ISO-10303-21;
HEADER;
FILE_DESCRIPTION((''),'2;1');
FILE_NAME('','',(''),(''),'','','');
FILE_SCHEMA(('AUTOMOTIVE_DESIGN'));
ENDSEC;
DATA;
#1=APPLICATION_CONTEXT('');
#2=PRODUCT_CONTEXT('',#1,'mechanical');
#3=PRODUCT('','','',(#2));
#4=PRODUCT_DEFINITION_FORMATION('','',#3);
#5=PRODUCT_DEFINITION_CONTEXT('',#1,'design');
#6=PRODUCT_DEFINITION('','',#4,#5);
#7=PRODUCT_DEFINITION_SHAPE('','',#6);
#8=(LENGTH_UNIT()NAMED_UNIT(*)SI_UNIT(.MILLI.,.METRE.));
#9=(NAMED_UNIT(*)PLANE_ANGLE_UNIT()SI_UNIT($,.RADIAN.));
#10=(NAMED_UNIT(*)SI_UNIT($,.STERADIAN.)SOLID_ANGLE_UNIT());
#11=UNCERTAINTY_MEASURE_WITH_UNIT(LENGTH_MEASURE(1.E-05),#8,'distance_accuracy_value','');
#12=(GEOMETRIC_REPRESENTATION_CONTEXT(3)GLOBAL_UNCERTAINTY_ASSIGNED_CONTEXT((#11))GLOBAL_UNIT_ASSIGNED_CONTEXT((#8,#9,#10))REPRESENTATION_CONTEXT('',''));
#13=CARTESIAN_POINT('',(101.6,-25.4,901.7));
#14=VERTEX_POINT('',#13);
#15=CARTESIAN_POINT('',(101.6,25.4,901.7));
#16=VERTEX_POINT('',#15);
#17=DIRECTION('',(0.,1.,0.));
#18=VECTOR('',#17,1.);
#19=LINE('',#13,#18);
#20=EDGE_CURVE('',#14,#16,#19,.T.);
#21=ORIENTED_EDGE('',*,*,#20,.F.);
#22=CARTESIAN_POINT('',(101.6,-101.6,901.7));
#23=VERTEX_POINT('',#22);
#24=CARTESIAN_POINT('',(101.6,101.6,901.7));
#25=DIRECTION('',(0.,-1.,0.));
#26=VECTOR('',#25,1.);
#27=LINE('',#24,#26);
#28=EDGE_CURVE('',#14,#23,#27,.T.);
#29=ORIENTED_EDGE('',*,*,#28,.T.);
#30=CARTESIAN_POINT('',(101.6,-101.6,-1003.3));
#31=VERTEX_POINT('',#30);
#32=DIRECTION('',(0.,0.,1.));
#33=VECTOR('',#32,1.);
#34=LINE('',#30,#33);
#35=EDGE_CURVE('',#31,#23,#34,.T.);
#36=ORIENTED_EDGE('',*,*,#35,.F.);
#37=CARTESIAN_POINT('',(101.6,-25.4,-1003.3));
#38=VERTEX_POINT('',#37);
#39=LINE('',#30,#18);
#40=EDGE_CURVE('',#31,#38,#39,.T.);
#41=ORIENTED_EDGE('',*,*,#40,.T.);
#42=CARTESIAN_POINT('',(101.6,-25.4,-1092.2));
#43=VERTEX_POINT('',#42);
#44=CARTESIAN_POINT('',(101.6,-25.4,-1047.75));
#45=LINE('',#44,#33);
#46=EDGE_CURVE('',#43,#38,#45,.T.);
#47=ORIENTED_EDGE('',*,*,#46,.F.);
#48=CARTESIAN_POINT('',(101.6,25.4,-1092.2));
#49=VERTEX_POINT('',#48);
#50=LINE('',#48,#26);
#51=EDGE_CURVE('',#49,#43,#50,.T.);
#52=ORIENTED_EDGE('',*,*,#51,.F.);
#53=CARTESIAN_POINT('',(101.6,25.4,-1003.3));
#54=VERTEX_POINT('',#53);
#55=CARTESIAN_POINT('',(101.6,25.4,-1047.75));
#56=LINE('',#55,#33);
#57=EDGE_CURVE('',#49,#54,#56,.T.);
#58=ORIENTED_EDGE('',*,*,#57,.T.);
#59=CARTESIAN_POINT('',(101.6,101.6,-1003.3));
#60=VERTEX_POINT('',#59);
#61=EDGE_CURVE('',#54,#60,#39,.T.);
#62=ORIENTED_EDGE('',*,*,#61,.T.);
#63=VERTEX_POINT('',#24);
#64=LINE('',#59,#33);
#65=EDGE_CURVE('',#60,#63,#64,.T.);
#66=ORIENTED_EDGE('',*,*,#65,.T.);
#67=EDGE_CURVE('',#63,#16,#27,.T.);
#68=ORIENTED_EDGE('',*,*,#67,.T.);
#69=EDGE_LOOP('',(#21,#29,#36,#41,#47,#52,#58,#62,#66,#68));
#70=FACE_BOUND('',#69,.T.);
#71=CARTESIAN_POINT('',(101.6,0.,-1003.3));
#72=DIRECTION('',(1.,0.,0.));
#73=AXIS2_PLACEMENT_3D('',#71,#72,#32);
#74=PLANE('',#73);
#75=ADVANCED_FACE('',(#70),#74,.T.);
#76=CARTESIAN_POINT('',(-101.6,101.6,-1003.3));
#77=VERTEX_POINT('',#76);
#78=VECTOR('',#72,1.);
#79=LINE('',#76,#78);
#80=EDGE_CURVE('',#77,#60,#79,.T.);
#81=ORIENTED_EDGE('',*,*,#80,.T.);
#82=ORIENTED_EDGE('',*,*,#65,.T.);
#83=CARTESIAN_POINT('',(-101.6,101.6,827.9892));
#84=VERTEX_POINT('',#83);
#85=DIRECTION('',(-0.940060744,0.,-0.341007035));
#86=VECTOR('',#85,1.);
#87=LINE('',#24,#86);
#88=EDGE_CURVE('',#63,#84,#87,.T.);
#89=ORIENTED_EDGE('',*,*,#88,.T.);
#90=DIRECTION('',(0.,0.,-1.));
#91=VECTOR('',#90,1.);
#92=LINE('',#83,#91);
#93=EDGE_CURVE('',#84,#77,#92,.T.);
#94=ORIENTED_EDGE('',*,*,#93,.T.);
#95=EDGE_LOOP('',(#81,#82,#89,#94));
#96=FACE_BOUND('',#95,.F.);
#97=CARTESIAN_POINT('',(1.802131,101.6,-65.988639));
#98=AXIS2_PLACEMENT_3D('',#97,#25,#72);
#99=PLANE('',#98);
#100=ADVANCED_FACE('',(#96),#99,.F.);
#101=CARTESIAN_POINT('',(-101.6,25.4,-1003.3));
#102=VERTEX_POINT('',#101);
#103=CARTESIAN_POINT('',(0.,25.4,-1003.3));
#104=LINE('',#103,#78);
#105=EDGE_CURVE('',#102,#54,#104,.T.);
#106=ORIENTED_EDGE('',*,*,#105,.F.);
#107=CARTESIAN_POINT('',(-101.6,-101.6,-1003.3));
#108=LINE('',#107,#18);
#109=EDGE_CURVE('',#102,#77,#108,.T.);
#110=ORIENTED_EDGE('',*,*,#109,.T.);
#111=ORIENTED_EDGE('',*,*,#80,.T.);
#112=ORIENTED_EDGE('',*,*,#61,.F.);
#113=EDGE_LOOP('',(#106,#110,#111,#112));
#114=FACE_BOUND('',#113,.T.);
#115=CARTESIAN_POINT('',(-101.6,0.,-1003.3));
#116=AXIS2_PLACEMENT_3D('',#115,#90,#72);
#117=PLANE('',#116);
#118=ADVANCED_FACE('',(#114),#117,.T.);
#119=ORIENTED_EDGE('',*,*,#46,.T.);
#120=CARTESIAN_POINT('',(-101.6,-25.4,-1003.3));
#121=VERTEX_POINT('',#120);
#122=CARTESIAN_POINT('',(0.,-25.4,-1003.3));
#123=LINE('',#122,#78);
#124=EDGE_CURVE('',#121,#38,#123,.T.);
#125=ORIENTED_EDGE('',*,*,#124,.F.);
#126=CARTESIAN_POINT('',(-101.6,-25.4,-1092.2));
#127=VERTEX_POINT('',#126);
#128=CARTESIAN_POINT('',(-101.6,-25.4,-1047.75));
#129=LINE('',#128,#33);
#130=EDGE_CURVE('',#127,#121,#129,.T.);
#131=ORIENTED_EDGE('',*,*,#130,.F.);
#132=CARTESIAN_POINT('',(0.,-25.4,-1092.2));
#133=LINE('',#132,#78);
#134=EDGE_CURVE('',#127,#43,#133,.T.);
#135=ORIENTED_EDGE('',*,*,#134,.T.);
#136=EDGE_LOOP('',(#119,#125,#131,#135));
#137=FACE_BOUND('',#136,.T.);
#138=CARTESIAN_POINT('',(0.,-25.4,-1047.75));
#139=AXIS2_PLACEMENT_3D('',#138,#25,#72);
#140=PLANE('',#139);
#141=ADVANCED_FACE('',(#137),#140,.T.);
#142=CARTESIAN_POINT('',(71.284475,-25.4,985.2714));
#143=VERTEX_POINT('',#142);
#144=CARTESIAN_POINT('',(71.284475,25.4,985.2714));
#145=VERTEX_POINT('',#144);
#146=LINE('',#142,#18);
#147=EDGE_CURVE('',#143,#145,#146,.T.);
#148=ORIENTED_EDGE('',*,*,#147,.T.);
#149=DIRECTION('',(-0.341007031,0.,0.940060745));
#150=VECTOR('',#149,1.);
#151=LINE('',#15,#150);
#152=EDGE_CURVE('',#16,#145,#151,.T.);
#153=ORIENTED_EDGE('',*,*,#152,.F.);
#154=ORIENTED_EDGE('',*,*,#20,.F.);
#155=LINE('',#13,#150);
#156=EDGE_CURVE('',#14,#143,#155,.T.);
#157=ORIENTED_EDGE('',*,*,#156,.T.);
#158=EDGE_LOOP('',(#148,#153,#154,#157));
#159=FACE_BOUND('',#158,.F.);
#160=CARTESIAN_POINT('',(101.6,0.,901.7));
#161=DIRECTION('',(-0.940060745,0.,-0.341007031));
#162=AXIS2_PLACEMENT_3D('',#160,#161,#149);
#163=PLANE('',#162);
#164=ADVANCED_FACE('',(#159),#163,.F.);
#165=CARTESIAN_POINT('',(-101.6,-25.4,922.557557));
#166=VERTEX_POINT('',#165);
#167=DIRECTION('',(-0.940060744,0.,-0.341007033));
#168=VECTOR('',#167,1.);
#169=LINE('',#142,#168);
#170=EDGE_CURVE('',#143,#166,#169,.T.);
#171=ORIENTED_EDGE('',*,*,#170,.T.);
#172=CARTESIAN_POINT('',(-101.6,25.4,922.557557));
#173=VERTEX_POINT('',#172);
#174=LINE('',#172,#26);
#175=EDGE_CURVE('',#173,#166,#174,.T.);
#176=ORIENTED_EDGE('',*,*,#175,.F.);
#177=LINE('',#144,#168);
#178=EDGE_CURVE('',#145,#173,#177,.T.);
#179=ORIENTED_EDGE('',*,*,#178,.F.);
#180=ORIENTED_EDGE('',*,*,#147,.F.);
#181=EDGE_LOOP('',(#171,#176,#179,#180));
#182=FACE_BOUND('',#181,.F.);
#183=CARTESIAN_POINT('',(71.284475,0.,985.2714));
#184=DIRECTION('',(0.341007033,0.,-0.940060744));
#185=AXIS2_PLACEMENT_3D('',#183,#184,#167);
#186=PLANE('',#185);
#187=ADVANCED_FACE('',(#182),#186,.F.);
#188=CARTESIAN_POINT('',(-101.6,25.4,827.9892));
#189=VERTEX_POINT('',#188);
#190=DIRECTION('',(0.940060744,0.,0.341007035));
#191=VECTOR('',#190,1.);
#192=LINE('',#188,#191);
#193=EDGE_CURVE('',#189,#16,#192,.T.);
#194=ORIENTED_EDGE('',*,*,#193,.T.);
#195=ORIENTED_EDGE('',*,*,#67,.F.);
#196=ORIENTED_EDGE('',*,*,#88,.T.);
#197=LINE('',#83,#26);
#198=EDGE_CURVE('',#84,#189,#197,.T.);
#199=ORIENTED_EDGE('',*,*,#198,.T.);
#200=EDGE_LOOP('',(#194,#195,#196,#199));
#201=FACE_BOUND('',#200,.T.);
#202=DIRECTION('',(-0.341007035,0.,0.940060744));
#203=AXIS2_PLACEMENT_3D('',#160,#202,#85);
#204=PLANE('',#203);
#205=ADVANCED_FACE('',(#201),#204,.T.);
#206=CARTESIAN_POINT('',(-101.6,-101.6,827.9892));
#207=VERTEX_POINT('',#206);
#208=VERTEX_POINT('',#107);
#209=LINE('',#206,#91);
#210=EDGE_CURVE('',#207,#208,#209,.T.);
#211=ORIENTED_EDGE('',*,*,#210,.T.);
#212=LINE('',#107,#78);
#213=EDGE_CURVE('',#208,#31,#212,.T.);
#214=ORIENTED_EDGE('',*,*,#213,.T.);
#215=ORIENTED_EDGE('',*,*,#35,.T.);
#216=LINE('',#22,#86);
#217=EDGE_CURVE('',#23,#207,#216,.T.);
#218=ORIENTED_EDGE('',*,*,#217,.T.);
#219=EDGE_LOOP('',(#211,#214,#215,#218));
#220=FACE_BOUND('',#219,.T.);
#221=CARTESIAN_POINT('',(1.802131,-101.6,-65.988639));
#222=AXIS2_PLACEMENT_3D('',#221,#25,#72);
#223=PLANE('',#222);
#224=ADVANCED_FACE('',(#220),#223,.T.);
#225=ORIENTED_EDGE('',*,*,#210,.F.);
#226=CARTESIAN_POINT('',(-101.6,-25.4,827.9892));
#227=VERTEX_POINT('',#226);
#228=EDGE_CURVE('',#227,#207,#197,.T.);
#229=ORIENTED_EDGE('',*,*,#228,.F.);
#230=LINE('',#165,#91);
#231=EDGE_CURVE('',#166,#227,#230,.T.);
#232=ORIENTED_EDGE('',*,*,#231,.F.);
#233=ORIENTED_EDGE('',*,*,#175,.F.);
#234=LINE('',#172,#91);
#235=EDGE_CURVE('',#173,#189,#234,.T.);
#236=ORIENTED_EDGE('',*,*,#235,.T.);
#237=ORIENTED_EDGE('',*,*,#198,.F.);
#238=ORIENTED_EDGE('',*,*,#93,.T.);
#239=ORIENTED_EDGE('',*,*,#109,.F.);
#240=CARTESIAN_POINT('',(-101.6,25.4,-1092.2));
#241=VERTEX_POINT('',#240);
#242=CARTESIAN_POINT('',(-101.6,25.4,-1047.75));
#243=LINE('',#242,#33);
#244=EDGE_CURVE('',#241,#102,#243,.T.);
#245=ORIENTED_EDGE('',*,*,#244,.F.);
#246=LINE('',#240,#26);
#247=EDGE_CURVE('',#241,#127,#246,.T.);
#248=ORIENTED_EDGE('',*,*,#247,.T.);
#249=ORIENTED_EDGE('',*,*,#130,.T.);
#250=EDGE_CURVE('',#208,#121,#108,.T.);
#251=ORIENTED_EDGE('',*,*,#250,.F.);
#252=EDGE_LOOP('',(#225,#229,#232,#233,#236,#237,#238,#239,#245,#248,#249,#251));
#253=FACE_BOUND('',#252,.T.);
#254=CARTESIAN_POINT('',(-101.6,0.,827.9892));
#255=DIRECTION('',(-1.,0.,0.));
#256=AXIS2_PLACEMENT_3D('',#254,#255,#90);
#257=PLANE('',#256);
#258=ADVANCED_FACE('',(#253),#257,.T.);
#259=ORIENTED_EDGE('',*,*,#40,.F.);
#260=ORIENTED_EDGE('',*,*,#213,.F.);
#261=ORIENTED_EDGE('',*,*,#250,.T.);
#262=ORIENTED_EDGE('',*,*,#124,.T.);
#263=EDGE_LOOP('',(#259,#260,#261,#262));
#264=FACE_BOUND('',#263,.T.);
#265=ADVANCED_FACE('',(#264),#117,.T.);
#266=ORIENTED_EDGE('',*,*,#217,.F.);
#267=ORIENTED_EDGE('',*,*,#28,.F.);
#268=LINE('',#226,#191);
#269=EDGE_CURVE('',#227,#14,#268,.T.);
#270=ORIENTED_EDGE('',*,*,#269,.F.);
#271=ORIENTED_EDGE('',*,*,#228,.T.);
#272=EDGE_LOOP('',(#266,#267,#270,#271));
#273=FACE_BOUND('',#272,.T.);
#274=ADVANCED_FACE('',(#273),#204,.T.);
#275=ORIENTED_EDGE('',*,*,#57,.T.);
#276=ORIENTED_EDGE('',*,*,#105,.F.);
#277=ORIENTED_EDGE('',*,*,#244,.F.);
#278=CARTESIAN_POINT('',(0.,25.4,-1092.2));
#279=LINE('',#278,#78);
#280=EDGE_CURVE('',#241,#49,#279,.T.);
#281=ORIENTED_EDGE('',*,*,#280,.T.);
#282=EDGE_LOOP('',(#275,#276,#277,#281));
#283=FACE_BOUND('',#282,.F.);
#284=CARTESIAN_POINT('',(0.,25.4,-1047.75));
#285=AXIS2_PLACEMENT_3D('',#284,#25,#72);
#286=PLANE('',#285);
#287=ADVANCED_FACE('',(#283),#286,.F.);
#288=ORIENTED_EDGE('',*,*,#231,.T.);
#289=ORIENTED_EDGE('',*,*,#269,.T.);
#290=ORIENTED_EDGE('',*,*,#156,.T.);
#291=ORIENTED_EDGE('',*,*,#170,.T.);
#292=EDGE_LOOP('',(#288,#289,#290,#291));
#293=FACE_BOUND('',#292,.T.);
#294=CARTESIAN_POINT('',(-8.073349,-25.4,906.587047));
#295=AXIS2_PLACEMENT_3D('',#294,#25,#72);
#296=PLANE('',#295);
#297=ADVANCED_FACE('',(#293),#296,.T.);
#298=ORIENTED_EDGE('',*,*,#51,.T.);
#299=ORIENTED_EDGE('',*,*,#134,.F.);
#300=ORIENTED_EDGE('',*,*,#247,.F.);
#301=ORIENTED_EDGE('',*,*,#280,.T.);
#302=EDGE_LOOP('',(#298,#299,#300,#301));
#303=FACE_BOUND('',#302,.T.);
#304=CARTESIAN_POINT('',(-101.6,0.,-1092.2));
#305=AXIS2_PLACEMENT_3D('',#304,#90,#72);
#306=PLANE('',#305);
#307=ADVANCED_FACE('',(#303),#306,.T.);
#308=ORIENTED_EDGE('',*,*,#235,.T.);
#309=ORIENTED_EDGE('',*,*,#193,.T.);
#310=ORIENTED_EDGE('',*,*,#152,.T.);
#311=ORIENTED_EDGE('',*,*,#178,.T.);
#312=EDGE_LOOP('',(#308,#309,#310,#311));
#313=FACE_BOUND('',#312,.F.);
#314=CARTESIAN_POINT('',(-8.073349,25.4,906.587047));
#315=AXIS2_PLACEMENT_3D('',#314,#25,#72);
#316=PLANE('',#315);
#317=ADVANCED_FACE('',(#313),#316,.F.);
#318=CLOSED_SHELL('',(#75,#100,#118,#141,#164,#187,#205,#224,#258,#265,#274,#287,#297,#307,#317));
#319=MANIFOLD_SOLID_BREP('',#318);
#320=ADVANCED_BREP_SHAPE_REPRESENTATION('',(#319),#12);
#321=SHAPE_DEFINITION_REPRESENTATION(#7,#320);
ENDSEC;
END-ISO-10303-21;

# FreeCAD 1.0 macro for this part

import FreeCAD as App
import Part
import Sketcher
Q = App.Units.Quantity

doc = App.newDocument("Part")
params = doc.addObject("Spreadsheet::Sheet", "Params")
for row, (alias, value) in enumerate([
    ("sketch1_width", "8 in"),
    ("sketch1_height", "75 in"),
    ("sketch1_height2", "72.098 in"),
    ("pad1_length", "8 in"),
    ("sketch2_width", "8 in"),
    ("sketch2_height", "3.5 in"),
    ("sketch2_length", "3.5 in"),
    ("pad2_length", "2 in"),
], start=1):
    params.set(f"A{row}", alias)
    params.set(f"B{row}", "=" + value)
    params.setAlias(f"B{row}", alias)

body = doc.addObject("PartDesign::Body", "Body")

# Sketch on XZ plane
sketch1 = body.newObject("Sketcher::SketchObject", "Sketch")
sketch1.AttachmentSupport = (doc.getObject("XZ_Plane"), [""])
sketch1.MapMode = "FlatFace"
sketch1.addGeometry([
    Part.LineSegment(App.Vector(101.6, -1003.3, 0), App.Vector(101.6, 901.7, 0)),
    Part.LineSegment(App.Vector(101.6, 901.7, 0), App.Vector(-101.6, 827.9892, 0)),
    Part.LineSegment(App.Vector(-101.6, 827.9892, 0), App.Vector(-101.6, -1003.3, 0)),
    Part.LineSegment(App.Vector(-101.6, -1003.3, 0), App.Vector(101.6, -1003.3, 0)),
], False)
sketch1.addConstraint([
    Sketcher.Constraint("Coincident", 0, 2, 1, 1),
    Sketcher.Constraint("Coincident", 1, 2, 2, 1),
    Sketcher.Constraint("Coincident", 2, 2, 3, 1),
    Sketcher.Constraint("Coincident", 3, 2, 0, 1),
    Sketcher.Constraint("Vertical", 0),
    Sketcher.Constraint("Vertical", 2),
    Sketcher.Constraint("Horizontal", 3),
    Sketcher.Constraint("DistanceX", 3, 1, 3, 2, Q("8 in")),
    Sketcher.Constraint("DistanceY", 0, 1, 0, 2, Q("75 in")),
    Sketcher.Constraint("DistanceX", -1, 1, 0, 2, Q("4 in")),
    Sketcher.Constraint("DistanceY", -1, 1, 0, 2, Q("35.5 in")),
    Sketcher.Constraint("DistanceY", 2, 2, 2, 1, Q("72.098 in")),
])
sketch1.setExpression("Constraints[7]", "Params.sketch1_width")
sketch1.setExpression("Constraints[8]", "Params.sketch1_height")
sketch1.setExpression("Constraints[11]", "Params.sketch1_height2")
pad1 = body.newObject("PartDesign::Pad", "Pad")
pad1.Profile = sketch1
pad1.setExpression("Length", "Params.pad1_length")
pad1.Midplane = True

# Sketch on XZ plane
sketch2 = body.newObject("Sketcher::SketchObject", "Sketch001")
sketch2.AttachmentSupport = (doc.getObject("XZ_Plane"), [""])
sketch2.MapMode = "FlatFace"
sketch2.addGeometry([
    Part.LineSegment(App.Vector(71.284475, 985.2714, 0), App.Vector(-101.6, 922.557557, 0)),  # 0
    Part.LineSegment(App.Vector(-101.6, 922.557557, 0), App.Vector(-101.6, 827.9892, 0)),  # 1
    Part.LineSegment(App.Vector(-101.6, 827.9892, 0), App.Vector(101.6, 901.7, 0)),  # 2
    Part.LineSegment(App.Vector(101.6, 901.7, 0), App.Vector(71.284475, 985.2714, 0)),  # 3
    Part.LineSegment(App.Vector(-101.6, -1003.3, 0), App.Vector(-101.6, -1092.2, 0)),  # 4
    Part.LineSegment(App.Vector(-101.6, -1092.2, 0), App.Vector(101.6, -1092.2, 0)),  # 5
    Part.LineSegment(App.Vector(101.6, -1092.2, 0), App.Vector(101.6, -1003.3, 0)),  # 6
    Part.LineSegment(App.Vector(101.6, -1003.3, 0), App.Vector(-101.6, -1003.3, 0)),  # 7
], False)
sketch2.addConstraint([
    Sketcher.Constraint("Coincident", 0, 2, 1, 1),
    Sketcher.Constraint("Coincident", 1, 2, 2, 1),
    Sketcher.Constraint("Coincident", 2, 2, 3, 1),
    Sketcher.Constraint("Coincident", 3, 2, 0, 1),
    Sketcher.Constraint("Coincident", 4, 2, 5, 1),
    Sketcher.Constraint("Coincident", 5, 2, 6, 1),
    Sketcher.Constraint("Coincident", 6, 2, 7, 1),
    Sketcher.Constraint("Coincident", 7, 2, 4, 1),
    Sketcher.Constraint("Vertical", 1),
    Sketcher.Constraint("Vertical", 4),
    Sketcher.Constraint("Horizontal", 5),
    Sketcher.Constraint("Vertical", 6),
    Sketcher.Constraint("Horizontal", 7),
    Sketcher.Constraint("Parallel", 0, 2),
    Sketcher.Constraint("Perpendicular", 2, 3),
    Sketcher.Constraint("Vertical", 1, 2, 4, 2),
    Sketcher.Constraint("Vertical", 2, 2, 5, 2),
    Sketcher.Constraint("DistanceX", 5, 1, 5, 2, Q("8 in")),
    Sketcher.Constraint("DistanceY", 4, 2, 4, 1, Q("3.5 in")),
    Sketcher.Constraint("DistanceX", 0, 2, -1, 1, Q("4 in")),
    Sketcher.Constraint("DistanceY", 4, 2, -1, 1, Q("43 in")),
    Sketcher.Constraint("DistanceY", 6, 2, 2, 2, Q("75 in")),
    Sketcher.Constraint("Distance", 3, Q("3.5 in")),
    Sketcher.Constraint("DistanceY", -1, 1, 1, 2, Q("32.598 in")),
])
sketch2.setExpression("Constraints[17]", "Params.sketch2_width")
sketch2.setExpression("Constraints[18]", "Params.sketch2_height")
sketch2.setExpression("Constraints[22]", "Params.sketch2_length")
pad2 = body.newObject("PartDesign::Pad", "Pad001")
pad2.Profile = sketch2
pad2.setExpression("Length", "Params.pad2_length")
pad2.Midplane = True

doc.recompute()
